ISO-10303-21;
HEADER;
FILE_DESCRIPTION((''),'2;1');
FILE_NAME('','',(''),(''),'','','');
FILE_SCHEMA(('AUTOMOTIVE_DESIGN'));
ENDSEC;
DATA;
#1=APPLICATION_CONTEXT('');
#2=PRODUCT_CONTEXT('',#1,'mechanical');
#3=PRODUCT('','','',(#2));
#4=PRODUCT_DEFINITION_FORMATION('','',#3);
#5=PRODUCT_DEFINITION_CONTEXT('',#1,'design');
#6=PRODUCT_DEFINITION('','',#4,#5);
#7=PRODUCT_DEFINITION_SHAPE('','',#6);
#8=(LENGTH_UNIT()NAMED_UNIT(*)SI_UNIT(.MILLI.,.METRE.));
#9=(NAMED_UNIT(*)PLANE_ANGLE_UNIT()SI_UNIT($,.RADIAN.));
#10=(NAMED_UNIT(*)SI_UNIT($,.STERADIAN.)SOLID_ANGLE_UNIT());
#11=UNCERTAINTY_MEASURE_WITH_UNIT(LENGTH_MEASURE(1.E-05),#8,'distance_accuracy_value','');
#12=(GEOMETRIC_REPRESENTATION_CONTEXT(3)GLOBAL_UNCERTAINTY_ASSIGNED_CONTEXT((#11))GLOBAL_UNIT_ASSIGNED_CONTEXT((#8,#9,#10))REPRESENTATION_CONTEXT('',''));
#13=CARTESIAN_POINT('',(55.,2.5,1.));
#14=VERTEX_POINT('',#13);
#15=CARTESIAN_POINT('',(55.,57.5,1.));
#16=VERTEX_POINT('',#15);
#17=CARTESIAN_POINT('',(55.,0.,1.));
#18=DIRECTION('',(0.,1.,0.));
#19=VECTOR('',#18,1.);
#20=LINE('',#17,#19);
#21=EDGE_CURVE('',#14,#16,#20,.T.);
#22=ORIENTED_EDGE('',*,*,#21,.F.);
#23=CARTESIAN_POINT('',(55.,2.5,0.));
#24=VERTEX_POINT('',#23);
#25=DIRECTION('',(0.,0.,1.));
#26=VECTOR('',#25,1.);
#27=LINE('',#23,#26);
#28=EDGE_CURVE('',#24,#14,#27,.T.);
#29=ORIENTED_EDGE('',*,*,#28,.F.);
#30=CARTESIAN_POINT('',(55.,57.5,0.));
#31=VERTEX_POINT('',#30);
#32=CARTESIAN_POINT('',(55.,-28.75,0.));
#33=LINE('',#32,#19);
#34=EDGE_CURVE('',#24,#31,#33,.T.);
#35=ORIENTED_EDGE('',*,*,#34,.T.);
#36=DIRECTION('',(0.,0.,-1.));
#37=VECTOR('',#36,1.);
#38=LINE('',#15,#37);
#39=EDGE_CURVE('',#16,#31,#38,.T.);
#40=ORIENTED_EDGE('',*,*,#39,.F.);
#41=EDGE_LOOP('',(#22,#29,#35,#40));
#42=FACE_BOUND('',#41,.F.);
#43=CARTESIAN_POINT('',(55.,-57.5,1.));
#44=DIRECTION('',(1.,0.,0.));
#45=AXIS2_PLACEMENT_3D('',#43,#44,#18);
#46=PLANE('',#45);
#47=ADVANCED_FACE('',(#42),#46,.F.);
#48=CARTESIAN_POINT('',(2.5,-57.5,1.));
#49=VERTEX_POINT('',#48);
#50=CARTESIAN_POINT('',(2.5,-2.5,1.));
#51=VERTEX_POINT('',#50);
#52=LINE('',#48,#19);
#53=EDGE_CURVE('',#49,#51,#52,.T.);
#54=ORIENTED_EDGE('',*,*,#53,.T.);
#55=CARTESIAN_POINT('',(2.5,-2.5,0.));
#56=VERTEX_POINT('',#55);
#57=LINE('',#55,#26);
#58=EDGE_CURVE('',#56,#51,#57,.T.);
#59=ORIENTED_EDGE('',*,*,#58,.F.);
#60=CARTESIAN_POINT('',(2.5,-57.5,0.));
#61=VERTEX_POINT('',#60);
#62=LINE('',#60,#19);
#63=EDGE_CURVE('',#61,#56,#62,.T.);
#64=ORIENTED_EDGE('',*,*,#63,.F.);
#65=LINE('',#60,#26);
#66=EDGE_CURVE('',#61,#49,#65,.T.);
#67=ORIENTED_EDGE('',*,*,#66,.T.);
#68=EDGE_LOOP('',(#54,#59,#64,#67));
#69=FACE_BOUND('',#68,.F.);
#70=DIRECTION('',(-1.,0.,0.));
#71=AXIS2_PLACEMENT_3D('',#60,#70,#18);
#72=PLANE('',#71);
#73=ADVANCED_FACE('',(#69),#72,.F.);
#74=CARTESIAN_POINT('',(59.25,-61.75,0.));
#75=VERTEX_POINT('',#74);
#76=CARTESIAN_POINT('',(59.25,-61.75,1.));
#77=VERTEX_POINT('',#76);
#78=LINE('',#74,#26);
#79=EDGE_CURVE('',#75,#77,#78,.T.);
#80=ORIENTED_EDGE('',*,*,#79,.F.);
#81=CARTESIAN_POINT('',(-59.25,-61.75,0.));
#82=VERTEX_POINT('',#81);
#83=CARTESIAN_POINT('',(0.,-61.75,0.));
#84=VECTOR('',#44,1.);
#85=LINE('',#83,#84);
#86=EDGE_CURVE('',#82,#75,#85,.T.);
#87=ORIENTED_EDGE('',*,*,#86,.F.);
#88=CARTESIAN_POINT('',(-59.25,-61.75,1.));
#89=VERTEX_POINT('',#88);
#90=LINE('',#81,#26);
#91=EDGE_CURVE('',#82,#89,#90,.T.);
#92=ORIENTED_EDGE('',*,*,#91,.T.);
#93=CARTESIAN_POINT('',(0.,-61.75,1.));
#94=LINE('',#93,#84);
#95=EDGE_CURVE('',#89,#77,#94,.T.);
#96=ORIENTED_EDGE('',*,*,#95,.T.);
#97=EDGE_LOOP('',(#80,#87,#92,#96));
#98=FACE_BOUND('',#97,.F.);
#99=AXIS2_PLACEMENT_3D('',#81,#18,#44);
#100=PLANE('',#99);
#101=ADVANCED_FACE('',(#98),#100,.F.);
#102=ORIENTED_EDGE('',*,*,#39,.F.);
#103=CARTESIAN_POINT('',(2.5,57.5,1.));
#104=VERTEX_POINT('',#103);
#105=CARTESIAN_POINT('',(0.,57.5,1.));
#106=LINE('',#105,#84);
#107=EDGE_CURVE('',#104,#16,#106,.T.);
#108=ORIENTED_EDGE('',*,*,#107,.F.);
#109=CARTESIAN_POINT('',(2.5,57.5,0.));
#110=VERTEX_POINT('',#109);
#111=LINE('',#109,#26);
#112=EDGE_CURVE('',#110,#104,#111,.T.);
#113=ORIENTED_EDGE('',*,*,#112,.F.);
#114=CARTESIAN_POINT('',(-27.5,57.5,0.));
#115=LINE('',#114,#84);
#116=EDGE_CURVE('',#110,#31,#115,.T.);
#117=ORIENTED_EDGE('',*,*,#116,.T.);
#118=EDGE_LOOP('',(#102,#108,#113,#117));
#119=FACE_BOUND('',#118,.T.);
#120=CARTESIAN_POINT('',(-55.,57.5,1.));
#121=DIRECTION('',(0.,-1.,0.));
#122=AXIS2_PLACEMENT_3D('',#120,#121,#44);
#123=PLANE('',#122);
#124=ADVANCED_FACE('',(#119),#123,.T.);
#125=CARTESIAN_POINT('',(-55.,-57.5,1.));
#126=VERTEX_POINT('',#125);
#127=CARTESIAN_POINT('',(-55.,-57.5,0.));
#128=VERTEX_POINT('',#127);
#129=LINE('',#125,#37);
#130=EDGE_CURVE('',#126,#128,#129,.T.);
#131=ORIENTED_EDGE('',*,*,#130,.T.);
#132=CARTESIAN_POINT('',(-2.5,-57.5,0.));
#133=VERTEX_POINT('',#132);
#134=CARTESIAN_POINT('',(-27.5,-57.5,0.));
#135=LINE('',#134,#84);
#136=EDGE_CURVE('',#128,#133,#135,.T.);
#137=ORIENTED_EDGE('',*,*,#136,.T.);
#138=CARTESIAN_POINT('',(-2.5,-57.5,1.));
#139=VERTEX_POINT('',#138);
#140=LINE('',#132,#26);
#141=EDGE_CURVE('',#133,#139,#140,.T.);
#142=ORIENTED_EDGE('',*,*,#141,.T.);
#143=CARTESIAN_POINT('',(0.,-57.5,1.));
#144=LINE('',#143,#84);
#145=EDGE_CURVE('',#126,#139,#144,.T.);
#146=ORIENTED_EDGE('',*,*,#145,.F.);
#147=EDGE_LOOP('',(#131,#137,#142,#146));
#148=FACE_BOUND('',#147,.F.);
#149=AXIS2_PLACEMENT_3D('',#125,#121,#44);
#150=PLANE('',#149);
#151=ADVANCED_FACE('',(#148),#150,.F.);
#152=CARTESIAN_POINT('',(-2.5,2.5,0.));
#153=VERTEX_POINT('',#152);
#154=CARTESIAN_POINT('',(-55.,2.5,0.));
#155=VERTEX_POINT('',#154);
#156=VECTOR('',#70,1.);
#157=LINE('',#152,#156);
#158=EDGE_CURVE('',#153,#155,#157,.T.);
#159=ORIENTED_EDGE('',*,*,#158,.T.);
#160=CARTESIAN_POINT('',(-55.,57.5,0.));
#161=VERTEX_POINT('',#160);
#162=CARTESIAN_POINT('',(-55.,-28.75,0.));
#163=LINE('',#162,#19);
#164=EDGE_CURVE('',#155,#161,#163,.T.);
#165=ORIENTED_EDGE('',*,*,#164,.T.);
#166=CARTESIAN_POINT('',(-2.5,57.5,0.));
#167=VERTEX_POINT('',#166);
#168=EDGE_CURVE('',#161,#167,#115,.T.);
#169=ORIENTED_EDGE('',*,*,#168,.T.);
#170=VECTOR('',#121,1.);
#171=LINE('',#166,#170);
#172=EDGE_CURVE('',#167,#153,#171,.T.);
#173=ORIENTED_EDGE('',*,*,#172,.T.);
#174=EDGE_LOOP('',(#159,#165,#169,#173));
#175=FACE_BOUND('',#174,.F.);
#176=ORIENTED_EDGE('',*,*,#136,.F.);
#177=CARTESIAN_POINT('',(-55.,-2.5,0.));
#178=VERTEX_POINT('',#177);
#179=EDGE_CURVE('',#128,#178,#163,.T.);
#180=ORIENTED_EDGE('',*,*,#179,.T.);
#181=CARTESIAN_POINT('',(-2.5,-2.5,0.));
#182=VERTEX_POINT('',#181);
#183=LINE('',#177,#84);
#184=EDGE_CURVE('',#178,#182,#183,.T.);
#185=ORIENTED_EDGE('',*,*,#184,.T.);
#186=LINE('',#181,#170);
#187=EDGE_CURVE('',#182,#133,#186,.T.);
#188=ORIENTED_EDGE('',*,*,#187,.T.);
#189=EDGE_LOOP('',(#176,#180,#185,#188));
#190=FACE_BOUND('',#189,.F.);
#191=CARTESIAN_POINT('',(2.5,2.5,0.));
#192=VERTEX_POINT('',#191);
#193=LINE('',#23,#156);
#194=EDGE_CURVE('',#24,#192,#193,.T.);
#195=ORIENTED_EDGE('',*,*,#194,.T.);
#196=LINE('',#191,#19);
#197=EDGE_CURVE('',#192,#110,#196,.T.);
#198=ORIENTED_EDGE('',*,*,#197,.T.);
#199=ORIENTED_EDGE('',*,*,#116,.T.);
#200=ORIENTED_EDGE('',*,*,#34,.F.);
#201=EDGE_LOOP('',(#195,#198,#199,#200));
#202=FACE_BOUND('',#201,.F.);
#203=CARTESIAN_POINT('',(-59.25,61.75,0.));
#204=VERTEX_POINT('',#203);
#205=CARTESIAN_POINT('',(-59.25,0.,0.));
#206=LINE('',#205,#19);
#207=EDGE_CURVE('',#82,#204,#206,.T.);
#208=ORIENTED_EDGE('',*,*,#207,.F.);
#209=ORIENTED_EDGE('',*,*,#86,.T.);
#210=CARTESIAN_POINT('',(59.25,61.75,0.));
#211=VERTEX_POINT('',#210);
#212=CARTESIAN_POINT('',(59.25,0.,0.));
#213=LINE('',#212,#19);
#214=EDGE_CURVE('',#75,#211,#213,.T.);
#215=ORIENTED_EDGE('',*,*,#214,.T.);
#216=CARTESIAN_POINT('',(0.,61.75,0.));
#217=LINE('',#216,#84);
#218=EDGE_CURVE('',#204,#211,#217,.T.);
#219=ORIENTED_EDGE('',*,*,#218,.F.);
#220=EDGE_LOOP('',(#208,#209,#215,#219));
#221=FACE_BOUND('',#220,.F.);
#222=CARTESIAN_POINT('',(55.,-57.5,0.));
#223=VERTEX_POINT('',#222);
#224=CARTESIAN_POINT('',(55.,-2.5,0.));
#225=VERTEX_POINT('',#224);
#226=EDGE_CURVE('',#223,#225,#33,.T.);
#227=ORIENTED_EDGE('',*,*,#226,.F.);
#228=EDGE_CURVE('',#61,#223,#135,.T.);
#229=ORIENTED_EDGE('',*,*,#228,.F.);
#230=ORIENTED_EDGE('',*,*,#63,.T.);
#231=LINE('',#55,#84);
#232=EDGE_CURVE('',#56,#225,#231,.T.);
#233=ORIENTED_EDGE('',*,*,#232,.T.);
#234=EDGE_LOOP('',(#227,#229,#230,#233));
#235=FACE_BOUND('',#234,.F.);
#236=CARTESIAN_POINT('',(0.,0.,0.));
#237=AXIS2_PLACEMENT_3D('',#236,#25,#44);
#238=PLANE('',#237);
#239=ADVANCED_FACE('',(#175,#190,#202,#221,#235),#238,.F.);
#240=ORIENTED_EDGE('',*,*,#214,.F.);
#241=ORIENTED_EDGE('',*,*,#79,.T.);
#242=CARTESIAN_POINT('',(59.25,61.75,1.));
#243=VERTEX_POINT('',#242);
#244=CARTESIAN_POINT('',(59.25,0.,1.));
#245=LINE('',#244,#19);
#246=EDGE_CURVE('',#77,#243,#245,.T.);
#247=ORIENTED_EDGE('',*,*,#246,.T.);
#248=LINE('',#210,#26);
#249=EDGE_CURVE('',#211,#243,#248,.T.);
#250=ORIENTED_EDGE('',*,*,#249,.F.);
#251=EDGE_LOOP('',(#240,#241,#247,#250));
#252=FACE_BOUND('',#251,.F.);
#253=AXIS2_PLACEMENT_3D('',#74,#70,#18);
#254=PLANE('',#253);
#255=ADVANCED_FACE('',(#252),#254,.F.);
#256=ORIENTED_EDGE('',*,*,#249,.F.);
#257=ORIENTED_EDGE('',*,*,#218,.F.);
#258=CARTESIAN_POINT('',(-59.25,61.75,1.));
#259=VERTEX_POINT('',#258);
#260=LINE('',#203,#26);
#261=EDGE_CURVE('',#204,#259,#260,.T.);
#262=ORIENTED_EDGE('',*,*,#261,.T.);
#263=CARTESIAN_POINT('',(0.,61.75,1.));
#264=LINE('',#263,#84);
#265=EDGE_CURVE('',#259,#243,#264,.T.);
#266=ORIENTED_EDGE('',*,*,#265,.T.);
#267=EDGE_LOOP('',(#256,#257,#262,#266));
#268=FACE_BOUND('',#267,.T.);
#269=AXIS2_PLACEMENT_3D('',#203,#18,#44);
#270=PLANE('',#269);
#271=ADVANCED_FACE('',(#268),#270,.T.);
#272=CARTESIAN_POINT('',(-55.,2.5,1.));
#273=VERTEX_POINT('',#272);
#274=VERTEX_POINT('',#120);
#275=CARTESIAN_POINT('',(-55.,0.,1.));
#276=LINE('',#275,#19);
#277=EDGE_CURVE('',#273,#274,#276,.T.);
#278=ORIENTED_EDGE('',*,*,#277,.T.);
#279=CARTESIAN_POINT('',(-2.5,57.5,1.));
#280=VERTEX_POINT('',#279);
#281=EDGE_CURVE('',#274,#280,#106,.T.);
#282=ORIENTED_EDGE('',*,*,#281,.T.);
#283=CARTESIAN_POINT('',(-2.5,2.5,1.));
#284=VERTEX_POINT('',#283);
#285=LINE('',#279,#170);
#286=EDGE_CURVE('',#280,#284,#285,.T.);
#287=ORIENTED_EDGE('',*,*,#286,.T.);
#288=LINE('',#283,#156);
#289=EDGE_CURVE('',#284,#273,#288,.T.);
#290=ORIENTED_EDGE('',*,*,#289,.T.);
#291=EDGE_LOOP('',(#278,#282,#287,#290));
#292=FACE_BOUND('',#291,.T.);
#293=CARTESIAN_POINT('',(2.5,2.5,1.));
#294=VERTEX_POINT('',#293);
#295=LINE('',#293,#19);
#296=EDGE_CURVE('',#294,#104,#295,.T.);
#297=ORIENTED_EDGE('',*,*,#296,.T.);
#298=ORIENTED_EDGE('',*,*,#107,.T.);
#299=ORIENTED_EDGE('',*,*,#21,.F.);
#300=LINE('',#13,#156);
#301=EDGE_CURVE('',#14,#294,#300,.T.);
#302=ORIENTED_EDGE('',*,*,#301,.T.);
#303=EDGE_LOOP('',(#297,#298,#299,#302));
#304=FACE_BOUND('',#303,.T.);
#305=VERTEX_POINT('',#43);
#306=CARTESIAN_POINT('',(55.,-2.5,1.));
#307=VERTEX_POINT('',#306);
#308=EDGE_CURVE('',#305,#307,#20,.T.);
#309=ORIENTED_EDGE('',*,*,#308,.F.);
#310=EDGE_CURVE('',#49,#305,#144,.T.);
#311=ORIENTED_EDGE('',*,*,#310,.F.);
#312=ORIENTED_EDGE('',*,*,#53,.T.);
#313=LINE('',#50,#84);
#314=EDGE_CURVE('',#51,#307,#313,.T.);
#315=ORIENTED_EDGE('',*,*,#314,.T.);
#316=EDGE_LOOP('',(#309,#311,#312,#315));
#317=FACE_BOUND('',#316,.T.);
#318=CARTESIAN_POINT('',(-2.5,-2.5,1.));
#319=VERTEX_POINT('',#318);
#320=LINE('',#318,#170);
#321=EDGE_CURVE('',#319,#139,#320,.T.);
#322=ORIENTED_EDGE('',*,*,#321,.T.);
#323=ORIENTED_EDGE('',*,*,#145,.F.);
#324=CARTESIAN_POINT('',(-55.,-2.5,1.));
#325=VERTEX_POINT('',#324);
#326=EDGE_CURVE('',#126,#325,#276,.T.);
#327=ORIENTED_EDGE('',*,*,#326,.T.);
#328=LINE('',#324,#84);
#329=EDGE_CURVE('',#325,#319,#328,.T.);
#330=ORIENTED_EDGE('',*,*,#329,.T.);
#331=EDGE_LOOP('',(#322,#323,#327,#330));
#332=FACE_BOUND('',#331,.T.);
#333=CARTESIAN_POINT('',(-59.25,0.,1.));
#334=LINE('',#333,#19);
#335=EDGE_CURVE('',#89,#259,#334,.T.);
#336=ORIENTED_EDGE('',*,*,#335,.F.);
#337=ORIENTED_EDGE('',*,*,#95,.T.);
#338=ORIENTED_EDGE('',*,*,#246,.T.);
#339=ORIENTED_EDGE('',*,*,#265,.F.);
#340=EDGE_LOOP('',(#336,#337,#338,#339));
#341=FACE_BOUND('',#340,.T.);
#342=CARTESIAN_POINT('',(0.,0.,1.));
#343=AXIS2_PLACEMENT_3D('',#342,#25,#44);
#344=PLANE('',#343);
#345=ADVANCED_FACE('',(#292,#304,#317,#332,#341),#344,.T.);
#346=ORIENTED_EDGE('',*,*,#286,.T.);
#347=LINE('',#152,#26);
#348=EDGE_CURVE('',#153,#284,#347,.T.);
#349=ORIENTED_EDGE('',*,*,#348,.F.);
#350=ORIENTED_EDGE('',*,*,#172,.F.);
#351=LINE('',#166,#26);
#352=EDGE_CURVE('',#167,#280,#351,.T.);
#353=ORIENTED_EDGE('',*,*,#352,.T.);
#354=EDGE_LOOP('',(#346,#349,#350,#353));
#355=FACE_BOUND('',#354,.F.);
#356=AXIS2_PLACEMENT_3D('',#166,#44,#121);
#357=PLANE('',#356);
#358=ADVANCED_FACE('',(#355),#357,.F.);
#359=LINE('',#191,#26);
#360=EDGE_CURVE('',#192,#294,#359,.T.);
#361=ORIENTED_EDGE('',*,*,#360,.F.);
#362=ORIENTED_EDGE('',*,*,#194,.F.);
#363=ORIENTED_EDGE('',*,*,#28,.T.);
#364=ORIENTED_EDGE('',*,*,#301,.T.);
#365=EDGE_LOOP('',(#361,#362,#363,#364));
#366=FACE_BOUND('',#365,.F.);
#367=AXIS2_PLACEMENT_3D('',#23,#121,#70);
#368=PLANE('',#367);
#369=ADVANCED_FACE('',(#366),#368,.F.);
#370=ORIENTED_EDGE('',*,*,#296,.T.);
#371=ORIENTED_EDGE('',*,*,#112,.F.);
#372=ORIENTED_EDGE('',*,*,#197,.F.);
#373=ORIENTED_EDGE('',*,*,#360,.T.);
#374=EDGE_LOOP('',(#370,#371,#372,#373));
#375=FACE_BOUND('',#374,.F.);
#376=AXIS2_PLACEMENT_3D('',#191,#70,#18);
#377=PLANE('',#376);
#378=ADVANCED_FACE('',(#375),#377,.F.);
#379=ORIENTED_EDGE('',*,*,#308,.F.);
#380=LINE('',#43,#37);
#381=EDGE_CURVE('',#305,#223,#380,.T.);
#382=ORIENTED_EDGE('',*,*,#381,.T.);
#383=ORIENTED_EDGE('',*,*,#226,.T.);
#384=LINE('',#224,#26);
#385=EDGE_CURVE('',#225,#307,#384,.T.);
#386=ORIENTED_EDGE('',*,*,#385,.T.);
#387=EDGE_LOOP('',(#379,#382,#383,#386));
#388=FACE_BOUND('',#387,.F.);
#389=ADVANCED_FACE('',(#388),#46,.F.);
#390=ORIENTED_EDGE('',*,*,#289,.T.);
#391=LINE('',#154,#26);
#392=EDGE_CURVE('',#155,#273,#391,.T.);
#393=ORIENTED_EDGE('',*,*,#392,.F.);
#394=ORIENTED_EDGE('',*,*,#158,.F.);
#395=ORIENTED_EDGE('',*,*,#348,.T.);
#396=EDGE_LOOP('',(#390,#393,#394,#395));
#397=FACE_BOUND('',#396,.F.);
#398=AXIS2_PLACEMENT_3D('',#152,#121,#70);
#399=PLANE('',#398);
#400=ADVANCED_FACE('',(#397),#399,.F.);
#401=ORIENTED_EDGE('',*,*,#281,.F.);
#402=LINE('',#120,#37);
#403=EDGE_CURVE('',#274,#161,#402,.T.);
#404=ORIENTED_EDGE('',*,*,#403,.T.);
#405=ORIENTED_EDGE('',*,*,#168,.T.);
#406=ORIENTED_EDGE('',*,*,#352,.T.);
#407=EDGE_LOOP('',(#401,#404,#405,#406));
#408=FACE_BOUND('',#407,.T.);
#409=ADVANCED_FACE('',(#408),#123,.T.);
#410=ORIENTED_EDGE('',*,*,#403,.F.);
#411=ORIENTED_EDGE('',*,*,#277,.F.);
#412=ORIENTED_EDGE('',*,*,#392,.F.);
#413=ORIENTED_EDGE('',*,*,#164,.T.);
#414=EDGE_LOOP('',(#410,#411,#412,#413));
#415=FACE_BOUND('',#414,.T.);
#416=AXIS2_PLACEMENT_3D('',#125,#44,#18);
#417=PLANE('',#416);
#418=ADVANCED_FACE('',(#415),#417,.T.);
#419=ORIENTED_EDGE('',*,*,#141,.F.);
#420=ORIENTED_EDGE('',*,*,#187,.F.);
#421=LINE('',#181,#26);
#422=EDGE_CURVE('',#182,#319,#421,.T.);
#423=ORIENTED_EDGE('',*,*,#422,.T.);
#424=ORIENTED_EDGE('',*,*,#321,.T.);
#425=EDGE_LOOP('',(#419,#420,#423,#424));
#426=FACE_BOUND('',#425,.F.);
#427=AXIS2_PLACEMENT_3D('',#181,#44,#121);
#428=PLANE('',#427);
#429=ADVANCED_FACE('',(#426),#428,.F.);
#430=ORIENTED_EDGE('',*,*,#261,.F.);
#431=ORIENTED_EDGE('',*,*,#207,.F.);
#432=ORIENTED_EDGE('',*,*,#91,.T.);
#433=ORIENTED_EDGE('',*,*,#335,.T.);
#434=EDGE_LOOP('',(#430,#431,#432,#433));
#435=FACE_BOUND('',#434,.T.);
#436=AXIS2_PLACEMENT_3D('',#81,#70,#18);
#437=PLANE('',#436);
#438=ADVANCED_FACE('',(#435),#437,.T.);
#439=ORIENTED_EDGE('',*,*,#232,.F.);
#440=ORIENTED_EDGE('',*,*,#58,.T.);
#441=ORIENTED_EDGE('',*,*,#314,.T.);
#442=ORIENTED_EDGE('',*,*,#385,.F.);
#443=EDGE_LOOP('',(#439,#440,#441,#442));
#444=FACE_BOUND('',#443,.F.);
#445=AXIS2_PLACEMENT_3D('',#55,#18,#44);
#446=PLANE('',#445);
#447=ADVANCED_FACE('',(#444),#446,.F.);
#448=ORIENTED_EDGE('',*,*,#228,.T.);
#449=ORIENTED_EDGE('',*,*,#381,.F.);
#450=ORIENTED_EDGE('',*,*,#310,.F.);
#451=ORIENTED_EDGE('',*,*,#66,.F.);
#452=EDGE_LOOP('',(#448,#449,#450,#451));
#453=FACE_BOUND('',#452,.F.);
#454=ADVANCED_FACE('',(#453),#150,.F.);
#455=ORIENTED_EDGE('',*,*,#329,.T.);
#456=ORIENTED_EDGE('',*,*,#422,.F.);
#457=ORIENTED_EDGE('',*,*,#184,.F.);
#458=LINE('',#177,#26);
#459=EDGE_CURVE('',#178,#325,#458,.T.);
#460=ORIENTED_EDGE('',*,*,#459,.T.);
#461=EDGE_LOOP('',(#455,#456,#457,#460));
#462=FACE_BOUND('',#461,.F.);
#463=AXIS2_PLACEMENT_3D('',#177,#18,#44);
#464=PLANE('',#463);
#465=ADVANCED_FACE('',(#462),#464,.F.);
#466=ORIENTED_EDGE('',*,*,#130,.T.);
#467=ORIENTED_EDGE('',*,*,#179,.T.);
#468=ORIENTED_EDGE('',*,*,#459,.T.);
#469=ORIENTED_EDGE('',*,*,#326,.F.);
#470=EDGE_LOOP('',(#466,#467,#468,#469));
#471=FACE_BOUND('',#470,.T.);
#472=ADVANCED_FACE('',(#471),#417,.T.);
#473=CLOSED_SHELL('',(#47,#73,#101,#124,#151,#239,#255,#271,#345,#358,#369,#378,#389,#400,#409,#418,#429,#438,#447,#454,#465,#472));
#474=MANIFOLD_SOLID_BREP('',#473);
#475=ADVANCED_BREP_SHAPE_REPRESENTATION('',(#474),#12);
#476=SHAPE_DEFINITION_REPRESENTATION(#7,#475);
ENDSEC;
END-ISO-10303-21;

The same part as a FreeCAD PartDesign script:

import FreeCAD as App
import Part
import Sketcher

V = App.Vector
Q = App.Units.Quantity


def add_polygon(sketch, points):
    """Adds a closed chain of lines whose ends are joined by coincident constraints."""
    first, n = sketch.GeometryCount, len(points)
    for a, b in zip(points, points[1:] + points[:1]):
        sketch.addGeometry(Part.LineSegment(App.Vector(*a, 0), App.Vector(*b, 0)), False)
    for i in range(n):
        sketch.addConstraint(Sketcher.Constraint("Coincident", first + i, 2, first + (i + 1) % n, 1))

doc = App.newDocument("Part")
body = doc.addObject("PartDesign::Body", "Body")

# Sketch on XY plane
sketch1 = doc.addObject("Sketcher::SketchObject", "Sketch")
body.addObject(sketch1)
sketch1.AttachmentSupport = (doc.XY_Plane, [""])
sketch1.MapMode = "FlatFace"
add_polygon(sketch1, [(-59, 62), (-59, -62), (59, -62), (59, 62)])  # lines 0-3
sketch1.addConstraint([
    Sketcher.Constraint("Vertical", 0),
    Sketcher.Constraint("Horizontal", 1),
    Sketcher.Constraint("Vertical", 2),
    Sketcher.Constraint("Horizontal", 3),
    Sketcher.Constraint("Symmetric", 0, 2, 2, 2, -1, 1),
    Sketcher.Constraint("DistanceX", 1, 1, 1, 2, Q("118.5 mm")),
    Sketcher.Constraint("DistanceY", 0, 2, 0, 1, Q("123.5 mm")),
])
pad1 = doc.addObject("PartDesign::Pad", "Pad")
body.addObject(pad1)
pad1.Profile = sketch1
pad1.Length = 1

# Sketch on XY plane
sketch2 = doc.addObject("Sketcher::SketchObject", "Sketch001")
body.addObject(sketch2)
sketch2.AttachmentSupport = (doc.XY_Plane, [""])
sketch2.MapMode = "FlatFace"
sketch2.AttachmentOffset = App.Placement(V(0, 0, 1), App.Rotation())
add_polygon(sketch2, [(-55, 58), (-55, -58), (55, -58), (55, 58)])  # lines 0-3
sketch2.addConstraint([
    Sketcher.Constraint("Vertical", 0),
    Sketcher.Constraint("Horizontal", 1),
    Sketcher.Constraint("Vertical", 2),
    Sketcher.Constraint("Horizontal", 3),
    Sketcher.Constraint("Symmetric", 0, 2, 2, 2, -1, 1),
    Sketcher.Constraint("DistanceX", 1, 1, 1, 2, Q("110 mm")),
    Sketcher.Constraint("DistanceY", 0, 2, 0, 1, Q("115 mm")),
])
pocket1 = doc.addObject("PartDesign::Pocket", "Pocket")
body.addObject(pocket1)
pocket1.Profile = sketch2
pocket1.Length = 25

# Sketch on XY plane
sketch3 = doc.addObject("Sketcher::SketchObject", "Sketch002")
body.addObject(sketch3)
sketch3.AttachmentSupport = (doc.XY_Plane, [""])
sketch3.MapMode = "FlatFace"
add_polygon(sketch3, [(2, 2), (2, 58), (-2, 58), (-2, 2), (-55, 2), (-55, -2), (-2, -2), (-2, -58), (2, -58), (2, -2), (55, -2), (55, 2)])  # lines 0-11
sketch3.addConstraint([
    Sketcher.Constraint("Vertical", 0),
    Sketcher.Constraint("Horizontal", 1),
    Sketcher.Constraint("Vertical", 2),
    Sketcher.Constraint("Horizontal", 3),
    Sketcher.Constraint("Vertical", 4),
    Sketcher.Constraint("Horizontal", 5),
    Sketcher.Constraint("Vertical", 6),
    Sketcher.Constraint("Horizontal", 7),
    Sketcher.Constraint("Vertical", 8),
    Sketcher.Constraint("Horizontal", 9),
    Sketcher.Constraint("Vertical", 10),
    Sketcher.Constraint("Horizontal", 11),
    Sketcher.Constraint("Symmetric", 0, 2, 6, 2, -1, 1),
    Sketcher.Constraint("Symmetric", 2, 2, 8, 2, -1, 1),
    Sketcher.Constraint("Symmetric", 4, 2, 10, 2, -1, 1),
    Sketcher.Constraint("Symmetric", 5, 2, 8, 2, -2),
    Sketcher.Constraint("Equal", 7, 4),
    Sketcher.Constraint("DistanceX", 1, 2, 1, 1, Q("5 mm")),
    Sketcher.Constraint("DistanceY", 0, 1, 0, 2, Q("55 mm")),
    Sketcher.Constraint("DistanceX", 3, 2, 3, 1, Q("52.5 mm")),
])
pad2 = doc.addObject("PartDesign::Pad", "Pad001")
body.addObject(pad2)
pad2.Profile = sketch3
pad2.Length = 1

doc.recompute()
